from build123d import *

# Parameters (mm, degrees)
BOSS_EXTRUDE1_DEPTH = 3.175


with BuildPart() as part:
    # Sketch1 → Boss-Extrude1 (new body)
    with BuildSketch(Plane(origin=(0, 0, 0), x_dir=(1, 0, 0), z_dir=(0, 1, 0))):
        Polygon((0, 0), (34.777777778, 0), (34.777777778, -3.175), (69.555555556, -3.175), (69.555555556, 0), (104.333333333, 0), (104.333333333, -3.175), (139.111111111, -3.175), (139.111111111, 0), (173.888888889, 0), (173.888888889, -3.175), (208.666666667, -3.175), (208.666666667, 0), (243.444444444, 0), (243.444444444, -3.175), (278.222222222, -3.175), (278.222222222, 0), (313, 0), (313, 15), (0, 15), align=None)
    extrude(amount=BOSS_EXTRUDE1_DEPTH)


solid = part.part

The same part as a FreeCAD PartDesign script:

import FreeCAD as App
import Part
import Sketcher
from FreeCAD import Vector


def add_polygon(sketch, points):
    """Adds a closed chain of lines whose ends are joined by coincident constraints."""
    first, n = sketch.GeometryCount, len(points)
    for a, b in zip(points, points[1:] + points[:1]):
        sketch.addGeometry(Part.LineSegment(App.Vector(*a, 0), App.Vector(*b, 0)), False)
    for i in range(n):
        sketch.addConstraint(Sketcher.Constraint("Coincident", first + i, 2, first + (i + 1) % n, 1))

doc = App.newDocument("Part")
params = doc.addObject("Spreadsheet::Sheet", "Params")
for row, (alias, value) in enumerate([
    ("sketch1_width", "313 mm"),
    ("sketch1_height", "15 mm"),
    ("pad1_length", "3.175 mm"),
], start=1):
    params.set(f"A{row}", alias)
    params.set(f"B{row}", "=" + value)
    params.setAlias(f"B{row}", alias)

body = doc.addObject("PartDesign::Body", "Body")

sketch1 = body.newObject("Sketcher::SketchObject", "Sketch")
sketch1.AttachmentSupport = (doc.getObject("XZ_Plane"), [""])
sketch1.MapMode = "FlatFace"
add_polygon(sketch1, [(0, 0), (34.8, 0), (34.8, 3.2), (69.6, 3.2), (69.6, 0), (104.3, 0), (104.3, 3.2), (139.1, 3.2), (139.1, 0), (173.9, 0), (173.9, 3.2), (208.7, 3.2), (208.7, 0), (243.4, 0), (243.4, 3.2), (278.2, 3.2), (278.2, 0), (313, 0), (313, -15), (0, -15)])
sketch1.addConstraint([
    Sketcher.Constraint("Horizontal", 0),
    Sketcher.Constraint("Vertical", 1),
    Sketcher.Constraint("Horizontal", 2),
    Sketcher.Constraint("Vertical", 3),
    Sketcher.Constraint("Horizontal", 4),
    Sketcher.Constraint("Vertical", 5),
    Sketcher.Constraint("Horizontal", 6),
    Sketcher.Constraint("Vertical", 7),
    Sketcher.Constraint("Horizontal", 8),
    Sketcher.Constraint("Vertical", 9),
    Sketcher.Constraint("Horizontal", 10),
    Sketcher.Constraint("Vertical", 11),
    Sketcher.Constraint("Horizontal", 12),
    Sketcher.Constraint("Vertical", 13),
    Sketcher.Constraint("Horizontal", 14),
    Sketcher.Constraint("Vertical", 15),
    Sketcher.Constraint("Horizontal", 16),
    Sketcher.Constraint("Vertical", 17),
    Sketcher.Constraint("Horizontal", 18),
    Sketcher.Constraint("Vertical", 19),
    Sketcher.Constraint("Coincident", 19, 2, -1, 1),
    Sketcher.Constraint("PointOnObject", 3, 2, -1),
    Sketcher.Constraint("PointOnObject", 7, 2, -1),
    Sketcher.Constraint("PointOnObject", 11, 2, -1),
    Sketcher.Constraint("PointOnObject", 15, 2, -1),
    Sketcher.Constraint("Horizontal", 2, 2, 5, 2),
    Sketcher.Constraint("Horizontal", 6, 2, 9, 2),
    Sketcher.Constraint("Horizontal", 10, 2, 13, 2),
    Sketcher.Constraint("Equal", 0, 2),
    Sketcher.Constraint("Equal", 2, 4),
    Sketcher.Constraint("Equal", 4, 6),
    Sketcher.Constraint("Equal", 6, 8),
    Sketcher.Constraint("Equal", 8, 10),
    Sketcher.Constraint("Equal", 10, 12),
    Sketcher.Constraint("Equal", 12, 14),
    Sketcher.Constraint("Equal", 14, 16),
    Sketcher.Constraint("DistanceX", 18, 2, 18, 1, 313.0),
    Sketcher.Constraint("DistanceY", 17, 2, 17, 1, 15.0),
    Sketcher.Constraint("DistanceY", 1, 1, 1, 2, 3.175),
])
sketch1.setExpression("Constraints[56]", "Params.sketch1_width")
sketch1.setExpression("Constraints[57]", "Params.sketch1_height")
pad1 = body.newObject("PartDesign::Pad", "Pad")
pad1.Profile = sketch1
pad1.setExpression("Length", "Params.pad1_length")
pad1.Reversed = True

doc.recompute()
